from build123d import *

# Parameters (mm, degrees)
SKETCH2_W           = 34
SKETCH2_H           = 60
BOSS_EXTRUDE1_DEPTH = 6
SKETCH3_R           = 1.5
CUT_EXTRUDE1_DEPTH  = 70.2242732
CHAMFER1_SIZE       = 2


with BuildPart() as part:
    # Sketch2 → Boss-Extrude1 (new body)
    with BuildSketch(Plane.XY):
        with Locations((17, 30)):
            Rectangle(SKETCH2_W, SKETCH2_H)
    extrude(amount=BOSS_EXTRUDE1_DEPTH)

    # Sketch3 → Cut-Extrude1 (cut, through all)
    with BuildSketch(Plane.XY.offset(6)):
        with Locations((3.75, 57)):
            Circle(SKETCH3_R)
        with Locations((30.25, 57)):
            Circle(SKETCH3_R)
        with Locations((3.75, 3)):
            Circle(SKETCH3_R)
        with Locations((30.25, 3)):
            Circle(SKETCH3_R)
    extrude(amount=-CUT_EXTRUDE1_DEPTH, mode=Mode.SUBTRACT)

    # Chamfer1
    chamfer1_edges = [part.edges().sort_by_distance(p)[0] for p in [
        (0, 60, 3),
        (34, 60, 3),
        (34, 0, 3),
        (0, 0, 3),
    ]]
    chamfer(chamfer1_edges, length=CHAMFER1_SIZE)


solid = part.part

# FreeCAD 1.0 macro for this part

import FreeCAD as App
import Part
import Sketcher

V = App.Vector
Q = App.Units.Quantity


def edges_at(feature, points):
    """Names of the edges that pass closest to the given points."""
    edges = feature.Shape.Edges
    near = lambda p: min(range(len(edges)), key=lambda i: edges[i].distToShape(Part.Vertex(*p))[0])
    return sorted({f"Edge{near(p) + 1}" for p in points})

doc = App.newDocument("Part")
body = doc.addObject("PartDesign::Body", "Body")

sketch1 = body.newObject("Sketcher::SketchObject", "Sketch")
sketch1.AttachmentSupport = (doc.getObject("XY_Plane"), [""])
sketch1.MapMode = "FlatFace"
sketch1.addGeometry([
    Part.LineSegment(V(0, 60, 0), V(0, 0, 0)),
    Part.LineSegment(V(0, 0, 0), V(34, 0, 0)),
    Part.LineSegment(V(34, 0, 0), V(34, 60, 0)),
    Part.LineSegment(V(34, 60, 0), V(0, 60, 0)),
], False)
sketch1.addConstraint([
    Sketcher.Constraint("Coincident", 0, 2, 1, 1),
    Sketcher.Constraint("Coincident", 1, 2, 2, 1),
    Sketcher.Constraint("Coincident", 2, 2, 3, 1),
    Sketcher.Constraint("Coincident", 3, 2, 0, 1),
    Sketcher.Constraint("Vertical", 0),
    Sketcher.Constraint("Horizontal", 1),
    Sketcher.Constraint("Vertical", 2),
    Sketcher.Constraint("Horizontal", 3),
    Sketcher.Constraint("Coincident", 0, 2, -1, 1),
    Sketcher.Constraint("DistanceX", 1, 1, 1, 2, Q("34 mm")),
    Sketcher.Constraint("DistanceY", 0, 2, 0, 1, Q("60 mm")),
])
pad1 = body.newObject("PartDesign::Pad", "Pad")
pad1.Profile = sketch1
pad1.Length = 6

sketch2 = body.newObject("Sketcher::SketchObject", "Sketch001")
sketch2.AttachmentSupport = (doc.getObject("XY_Plane"), [""])
sketch2.MapMode = "FlatFace"
sketch2.AttachmentOffset = App.Placement(V(0, 0, 6), App.Rotation())
sketch2.addGeometry([
    Part.Circle(V(3.75, 57, 0), V(0, 0, 1), 1.5),
    Part.Circle(V(30.25, 57, 0), V(0, 0, 1), 1.5),
    Part.Circle(V(3.75, 3, 0), V(0, 0, 1), 1.5),
    Part.Circle(V(30.25, 3, 0), V(0, 0, 1), 1.5),
], False)
sketch2.addConstraint([
    Sketcher.Constraint("Equal", 0, 1),
    Sketcher.Constraint("Equal", 1, 2),
    Sketcher.Constraint("Equal", 2, 3),
    Sketcher.Constraint("Horizontal", 0, 3, 1, 3),
    Sketcher.Constraint("Horizontal", 2, 3, 3, 3),
    Sketcher.Constraint("Vertical", 0, 3, 2, 3),
    Sketcher.Constraint("Vertical", 1, 3, 3, 3),
    Sketcher.Constraint("Diameter", 0, Q("3 mm")),
    Sketcher.Constraint("DistanceY", -1, 1, 0, 3, Q("57 mm")),
    Sketcher.Constraint("DistanceY", -1, 1, 2, 3, Q("3 mm")),
    Sketcher.Constraint("DistanceX", 0, 3, 1, 3, Q("26.5 mm")),
    Sketcher.Constraint("DistanceX", -1, 1, 0, 3, Q("3.75 mm")),
])
pocket1 = body.newObject("PartDesign::Pocket", "Pocket")
pocket1.Profile = sketch2
pocket1.Type = "ThroughAll"
doc.recompute()

chamfer = body.newObject("PartDesign::Chamfer", "Chamfer")
chamfer.Base = (pocket1, edges_at(pocket1, [
    (0, 60, 3),
    (34, 60, 3),
    (34, 0, 3),
    (0, 0, 3),
]))
chamfer.Size = 2

doc.recompute()
